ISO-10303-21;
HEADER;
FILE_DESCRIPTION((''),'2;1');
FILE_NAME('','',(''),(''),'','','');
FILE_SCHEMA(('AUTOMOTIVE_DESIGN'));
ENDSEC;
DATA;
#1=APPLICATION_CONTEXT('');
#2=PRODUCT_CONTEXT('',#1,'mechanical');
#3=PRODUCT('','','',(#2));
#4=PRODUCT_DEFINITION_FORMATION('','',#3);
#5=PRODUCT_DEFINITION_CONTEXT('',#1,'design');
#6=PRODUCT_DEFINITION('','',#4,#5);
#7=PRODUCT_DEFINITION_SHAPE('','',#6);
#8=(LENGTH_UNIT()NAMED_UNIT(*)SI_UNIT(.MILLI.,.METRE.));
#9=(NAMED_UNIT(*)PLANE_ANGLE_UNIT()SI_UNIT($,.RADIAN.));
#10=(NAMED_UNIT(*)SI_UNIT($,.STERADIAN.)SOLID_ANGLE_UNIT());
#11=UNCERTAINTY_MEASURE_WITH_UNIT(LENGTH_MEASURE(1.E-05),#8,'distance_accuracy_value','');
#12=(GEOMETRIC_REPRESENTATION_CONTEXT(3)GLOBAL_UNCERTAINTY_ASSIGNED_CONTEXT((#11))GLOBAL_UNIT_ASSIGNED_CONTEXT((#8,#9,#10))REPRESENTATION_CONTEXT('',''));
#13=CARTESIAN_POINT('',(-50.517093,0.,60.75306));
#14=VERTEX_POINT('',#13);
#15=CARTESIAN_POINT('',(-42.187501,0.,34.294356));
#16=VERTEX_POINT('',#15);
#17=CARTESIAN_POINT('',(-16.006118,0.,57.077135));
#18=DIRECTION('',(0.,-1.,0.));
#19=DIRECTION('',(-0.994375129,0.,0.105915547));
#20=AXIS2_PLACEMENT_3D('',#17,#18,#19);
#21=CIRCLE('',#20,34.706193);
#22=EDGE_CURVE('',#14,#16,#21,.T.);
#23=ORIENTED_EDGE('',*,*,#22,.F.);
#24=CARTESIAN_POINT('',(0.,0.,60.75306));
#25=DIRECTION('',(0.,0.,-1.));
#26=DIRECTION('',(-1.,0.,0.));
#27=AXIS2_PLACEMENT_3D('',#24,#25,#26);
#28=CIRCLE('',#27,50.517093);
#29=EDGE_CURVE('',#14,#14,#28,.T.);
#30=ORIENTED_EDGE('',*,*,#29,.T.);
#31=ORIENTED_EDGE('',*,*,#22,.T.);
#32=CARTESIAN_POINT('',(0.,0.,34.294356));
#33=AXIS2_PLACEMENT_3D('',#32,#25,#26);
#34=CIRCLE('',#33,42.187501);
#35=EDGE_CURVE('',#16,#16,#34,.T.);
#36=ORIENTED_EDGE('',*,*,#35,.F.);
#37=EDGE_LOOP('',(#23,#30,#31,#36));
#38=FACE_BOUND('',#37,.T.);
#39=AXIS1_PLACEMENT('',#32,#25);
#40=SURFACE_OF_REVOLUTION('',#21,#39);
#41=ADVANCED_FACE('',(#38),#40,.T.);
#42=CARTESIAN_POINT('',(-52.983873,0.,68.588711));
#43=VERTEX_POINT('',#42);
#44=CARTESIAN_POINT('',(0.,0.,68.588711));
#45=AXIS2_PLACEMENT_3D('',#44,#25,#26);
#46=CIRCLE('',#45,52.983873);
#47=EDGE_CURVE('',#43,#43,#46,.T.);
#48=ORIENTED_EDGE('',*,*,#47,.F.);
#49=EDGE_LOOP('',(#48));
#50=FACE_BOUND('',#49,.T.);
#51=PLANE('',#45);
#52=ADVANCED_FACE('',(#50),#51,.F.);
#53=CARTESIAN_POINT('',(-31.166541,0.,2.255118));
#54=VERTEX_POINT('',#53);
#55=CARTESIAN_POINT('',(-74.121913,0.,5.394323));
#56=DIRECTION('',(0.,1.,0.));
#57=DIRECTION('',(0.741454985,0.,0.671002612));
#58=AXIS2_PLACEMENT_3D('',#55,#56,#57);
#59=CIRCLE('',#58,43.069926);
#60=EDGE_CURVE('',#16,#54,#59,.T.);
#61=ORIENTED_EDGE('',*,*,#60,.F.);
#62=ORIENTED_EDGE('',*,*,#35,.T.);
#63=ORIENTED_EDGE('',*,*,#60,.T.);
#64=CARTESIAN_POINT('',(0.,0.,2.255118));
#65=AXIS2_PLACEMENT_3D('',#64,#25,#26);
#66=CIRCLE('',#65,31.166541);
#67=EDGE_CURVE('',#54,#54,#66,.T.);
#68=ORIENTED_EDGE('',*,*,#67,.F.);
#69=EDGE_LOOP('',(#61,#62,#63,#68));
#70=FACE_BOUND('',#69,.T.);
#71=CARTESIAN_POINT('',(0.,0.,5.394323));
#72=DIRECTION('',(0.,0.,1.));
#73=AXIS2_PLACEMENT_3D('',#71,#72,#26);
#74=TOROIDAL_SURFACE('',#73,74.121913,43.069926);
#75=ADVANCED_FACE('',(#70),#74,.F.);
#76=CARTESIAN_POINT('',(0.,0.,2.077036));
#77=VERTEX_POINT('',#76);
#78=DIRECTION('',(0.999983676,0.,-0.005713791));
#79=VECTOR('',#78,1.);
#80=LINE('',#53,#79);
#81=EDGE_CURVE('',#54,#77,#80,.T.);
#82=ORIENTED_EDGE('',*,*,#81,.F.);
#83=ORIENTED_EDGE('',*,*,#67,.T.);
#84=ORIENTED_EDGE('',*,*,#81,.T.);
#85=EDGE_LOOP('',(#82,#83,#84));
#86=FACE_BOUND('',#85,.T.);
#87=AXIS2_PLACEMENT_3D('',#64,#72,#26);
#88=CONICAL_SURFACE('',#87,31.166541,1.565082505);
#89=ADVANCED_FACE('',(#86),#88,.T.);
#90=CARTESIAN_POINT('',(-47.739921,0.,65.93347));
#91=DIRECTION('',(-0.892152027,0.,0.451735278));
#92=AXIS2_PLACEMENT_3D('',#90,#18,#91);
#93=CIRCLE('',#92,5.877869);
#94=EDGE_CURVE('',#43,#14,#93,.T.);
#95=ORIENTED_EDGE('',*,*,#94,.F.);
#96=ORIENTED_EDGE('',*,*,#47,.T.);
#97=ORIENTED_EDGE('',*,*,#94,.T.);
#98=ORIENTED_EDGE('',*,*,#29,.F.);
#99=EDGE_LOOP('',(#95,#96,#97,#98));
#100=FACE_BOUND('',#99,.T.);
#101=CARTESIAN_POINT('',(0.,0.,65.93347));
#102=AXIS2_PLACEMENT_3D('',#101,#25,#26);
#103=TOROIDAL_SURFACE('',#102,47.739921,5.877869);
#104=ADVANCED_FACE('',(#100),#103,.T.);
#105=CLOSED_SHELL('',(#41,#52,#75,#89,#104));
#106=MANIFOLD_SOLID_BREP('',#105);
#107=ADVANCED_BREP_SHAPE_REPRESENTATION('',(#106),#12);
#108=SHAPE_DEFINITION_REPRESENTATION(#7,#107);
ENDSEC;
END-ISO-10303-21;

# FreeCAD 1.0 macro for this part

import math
import FreeCAD as App
import Part
import Sketcher
from FreeCAD import Vector

doc = App.newDocument("Part")
params = doc.addObject("Spreadsheet::Sheet", "Params")
for row, (alias, value) in enumerate([
    ("revolution_angle", "360 deg"),
], start=1):
    params.set(f"A{row}", alias)
    params.set(f"B{row}", "=" + value)
    params.setAlias(f"B{row}", alias)

body = doc.addObject("PartDesign::Body", "Body")

# Sketch on XZ plane
sketch1 = body.newObject("Sketcher::SketchObject", "Sketch")
sketch1.AttachmentSupport = (doc.getObject("XZ_Plane"), [""])
sketch1.MapMode = "FlatFace"
sketch1.addGeometry([
    Part.ArcOfCircle(Part.Circle(Vector(-48, 66, 0), Vector(0, 0, 1), 6), math.radians(153), math.radians(242)),  # 0
    Part.ArcOfCircle(Part.Circle(Vector(-16, 57, 0), Vector(0, 0, 1), 35), math.radians(174), math.radians(221)),  # 1
    Part.ArcOfCircle(Part.Circle(Vector(-74, 5, 0), Vector(0, 0, 1), 43), math.radians(-4), math.radians(42)),  # 2
    Part.LineSegment(Vector(-31, 2, 0), Vector(0, 2, 0)),  # 3
    Part.LineSegment(Vector(0, 2, 0), Vector(0, 69, 0)),  # 4
    Part.LineSegment(Vector(0, 69, 0), Vector(-53, 69, 0)),  # 5
], False)
sketch1.addConstraint([
    Sketcher.Constraint("Coincident", 0, 2, 1, 1),
    Sketcher.Constraint("Coincident", 1, 2, 2, 2),
    Sketcher.Constraint("Coincident", 2, 1, 3, 1),
    Sketcher.Constraint("Coincident", 3, 2, 4, 1),
    Sketcher.Constraint("Coincident", 4, 2, 5, 1),
    Sketcher.Constraint("Coincident", 5, 2, 0, 1),
    Sketcher.Constraint("Vertical", 4),
    Sketcher.Constraint("Horizontal", 5),
    Sketcher.Constraint("PointOnObject", 3, 2, -2),
    Sketcher.Constraint("Radius", 0, 5.877869),
    Sketcher.Constraint("Radius", 1, 34.706193),
    Sketcher.Constraint("Radius", 2, 43.069926),
    Sketcher.Constraint("DistanceX", 1, 2, -1, 1, 42.187501),
    Sketcher.Constraint("DistanceY", 3, 2, 1, 3, 55.000099),
    Sketcher.Constraint("Distance", 3, 31.16705),
    Sketcher.Constraint("DistanceX", 5, 2, 5, 1, 52.983873),
    Sketcher.Constraint("DistanceY", 4, 1, 4, 2, 66.511675),
    Sketcher.Constraint("DistanceX", 0, 3, -1, 1, 47.739921),
    Sketcher.Constraint("DistanceY", -1, 1, 0, 3, 65.93347),
    Sketcher.Constraint("DistanceX", 1, 3, -1, 1, 16.006118),
    Sketcher.Constraint("DistanceY", -1, 1, 2, 1, 2.255118),
])
revolution = body.newObject("PartDesign::Revolution", "Revolution")
revolution.Profile = sketch1
revolution.ReferenceAxis = (sketch1, ["V_Axis"])
revolution.setExpression("Angle", "Params.revolution_angle")

doc.recompute()
